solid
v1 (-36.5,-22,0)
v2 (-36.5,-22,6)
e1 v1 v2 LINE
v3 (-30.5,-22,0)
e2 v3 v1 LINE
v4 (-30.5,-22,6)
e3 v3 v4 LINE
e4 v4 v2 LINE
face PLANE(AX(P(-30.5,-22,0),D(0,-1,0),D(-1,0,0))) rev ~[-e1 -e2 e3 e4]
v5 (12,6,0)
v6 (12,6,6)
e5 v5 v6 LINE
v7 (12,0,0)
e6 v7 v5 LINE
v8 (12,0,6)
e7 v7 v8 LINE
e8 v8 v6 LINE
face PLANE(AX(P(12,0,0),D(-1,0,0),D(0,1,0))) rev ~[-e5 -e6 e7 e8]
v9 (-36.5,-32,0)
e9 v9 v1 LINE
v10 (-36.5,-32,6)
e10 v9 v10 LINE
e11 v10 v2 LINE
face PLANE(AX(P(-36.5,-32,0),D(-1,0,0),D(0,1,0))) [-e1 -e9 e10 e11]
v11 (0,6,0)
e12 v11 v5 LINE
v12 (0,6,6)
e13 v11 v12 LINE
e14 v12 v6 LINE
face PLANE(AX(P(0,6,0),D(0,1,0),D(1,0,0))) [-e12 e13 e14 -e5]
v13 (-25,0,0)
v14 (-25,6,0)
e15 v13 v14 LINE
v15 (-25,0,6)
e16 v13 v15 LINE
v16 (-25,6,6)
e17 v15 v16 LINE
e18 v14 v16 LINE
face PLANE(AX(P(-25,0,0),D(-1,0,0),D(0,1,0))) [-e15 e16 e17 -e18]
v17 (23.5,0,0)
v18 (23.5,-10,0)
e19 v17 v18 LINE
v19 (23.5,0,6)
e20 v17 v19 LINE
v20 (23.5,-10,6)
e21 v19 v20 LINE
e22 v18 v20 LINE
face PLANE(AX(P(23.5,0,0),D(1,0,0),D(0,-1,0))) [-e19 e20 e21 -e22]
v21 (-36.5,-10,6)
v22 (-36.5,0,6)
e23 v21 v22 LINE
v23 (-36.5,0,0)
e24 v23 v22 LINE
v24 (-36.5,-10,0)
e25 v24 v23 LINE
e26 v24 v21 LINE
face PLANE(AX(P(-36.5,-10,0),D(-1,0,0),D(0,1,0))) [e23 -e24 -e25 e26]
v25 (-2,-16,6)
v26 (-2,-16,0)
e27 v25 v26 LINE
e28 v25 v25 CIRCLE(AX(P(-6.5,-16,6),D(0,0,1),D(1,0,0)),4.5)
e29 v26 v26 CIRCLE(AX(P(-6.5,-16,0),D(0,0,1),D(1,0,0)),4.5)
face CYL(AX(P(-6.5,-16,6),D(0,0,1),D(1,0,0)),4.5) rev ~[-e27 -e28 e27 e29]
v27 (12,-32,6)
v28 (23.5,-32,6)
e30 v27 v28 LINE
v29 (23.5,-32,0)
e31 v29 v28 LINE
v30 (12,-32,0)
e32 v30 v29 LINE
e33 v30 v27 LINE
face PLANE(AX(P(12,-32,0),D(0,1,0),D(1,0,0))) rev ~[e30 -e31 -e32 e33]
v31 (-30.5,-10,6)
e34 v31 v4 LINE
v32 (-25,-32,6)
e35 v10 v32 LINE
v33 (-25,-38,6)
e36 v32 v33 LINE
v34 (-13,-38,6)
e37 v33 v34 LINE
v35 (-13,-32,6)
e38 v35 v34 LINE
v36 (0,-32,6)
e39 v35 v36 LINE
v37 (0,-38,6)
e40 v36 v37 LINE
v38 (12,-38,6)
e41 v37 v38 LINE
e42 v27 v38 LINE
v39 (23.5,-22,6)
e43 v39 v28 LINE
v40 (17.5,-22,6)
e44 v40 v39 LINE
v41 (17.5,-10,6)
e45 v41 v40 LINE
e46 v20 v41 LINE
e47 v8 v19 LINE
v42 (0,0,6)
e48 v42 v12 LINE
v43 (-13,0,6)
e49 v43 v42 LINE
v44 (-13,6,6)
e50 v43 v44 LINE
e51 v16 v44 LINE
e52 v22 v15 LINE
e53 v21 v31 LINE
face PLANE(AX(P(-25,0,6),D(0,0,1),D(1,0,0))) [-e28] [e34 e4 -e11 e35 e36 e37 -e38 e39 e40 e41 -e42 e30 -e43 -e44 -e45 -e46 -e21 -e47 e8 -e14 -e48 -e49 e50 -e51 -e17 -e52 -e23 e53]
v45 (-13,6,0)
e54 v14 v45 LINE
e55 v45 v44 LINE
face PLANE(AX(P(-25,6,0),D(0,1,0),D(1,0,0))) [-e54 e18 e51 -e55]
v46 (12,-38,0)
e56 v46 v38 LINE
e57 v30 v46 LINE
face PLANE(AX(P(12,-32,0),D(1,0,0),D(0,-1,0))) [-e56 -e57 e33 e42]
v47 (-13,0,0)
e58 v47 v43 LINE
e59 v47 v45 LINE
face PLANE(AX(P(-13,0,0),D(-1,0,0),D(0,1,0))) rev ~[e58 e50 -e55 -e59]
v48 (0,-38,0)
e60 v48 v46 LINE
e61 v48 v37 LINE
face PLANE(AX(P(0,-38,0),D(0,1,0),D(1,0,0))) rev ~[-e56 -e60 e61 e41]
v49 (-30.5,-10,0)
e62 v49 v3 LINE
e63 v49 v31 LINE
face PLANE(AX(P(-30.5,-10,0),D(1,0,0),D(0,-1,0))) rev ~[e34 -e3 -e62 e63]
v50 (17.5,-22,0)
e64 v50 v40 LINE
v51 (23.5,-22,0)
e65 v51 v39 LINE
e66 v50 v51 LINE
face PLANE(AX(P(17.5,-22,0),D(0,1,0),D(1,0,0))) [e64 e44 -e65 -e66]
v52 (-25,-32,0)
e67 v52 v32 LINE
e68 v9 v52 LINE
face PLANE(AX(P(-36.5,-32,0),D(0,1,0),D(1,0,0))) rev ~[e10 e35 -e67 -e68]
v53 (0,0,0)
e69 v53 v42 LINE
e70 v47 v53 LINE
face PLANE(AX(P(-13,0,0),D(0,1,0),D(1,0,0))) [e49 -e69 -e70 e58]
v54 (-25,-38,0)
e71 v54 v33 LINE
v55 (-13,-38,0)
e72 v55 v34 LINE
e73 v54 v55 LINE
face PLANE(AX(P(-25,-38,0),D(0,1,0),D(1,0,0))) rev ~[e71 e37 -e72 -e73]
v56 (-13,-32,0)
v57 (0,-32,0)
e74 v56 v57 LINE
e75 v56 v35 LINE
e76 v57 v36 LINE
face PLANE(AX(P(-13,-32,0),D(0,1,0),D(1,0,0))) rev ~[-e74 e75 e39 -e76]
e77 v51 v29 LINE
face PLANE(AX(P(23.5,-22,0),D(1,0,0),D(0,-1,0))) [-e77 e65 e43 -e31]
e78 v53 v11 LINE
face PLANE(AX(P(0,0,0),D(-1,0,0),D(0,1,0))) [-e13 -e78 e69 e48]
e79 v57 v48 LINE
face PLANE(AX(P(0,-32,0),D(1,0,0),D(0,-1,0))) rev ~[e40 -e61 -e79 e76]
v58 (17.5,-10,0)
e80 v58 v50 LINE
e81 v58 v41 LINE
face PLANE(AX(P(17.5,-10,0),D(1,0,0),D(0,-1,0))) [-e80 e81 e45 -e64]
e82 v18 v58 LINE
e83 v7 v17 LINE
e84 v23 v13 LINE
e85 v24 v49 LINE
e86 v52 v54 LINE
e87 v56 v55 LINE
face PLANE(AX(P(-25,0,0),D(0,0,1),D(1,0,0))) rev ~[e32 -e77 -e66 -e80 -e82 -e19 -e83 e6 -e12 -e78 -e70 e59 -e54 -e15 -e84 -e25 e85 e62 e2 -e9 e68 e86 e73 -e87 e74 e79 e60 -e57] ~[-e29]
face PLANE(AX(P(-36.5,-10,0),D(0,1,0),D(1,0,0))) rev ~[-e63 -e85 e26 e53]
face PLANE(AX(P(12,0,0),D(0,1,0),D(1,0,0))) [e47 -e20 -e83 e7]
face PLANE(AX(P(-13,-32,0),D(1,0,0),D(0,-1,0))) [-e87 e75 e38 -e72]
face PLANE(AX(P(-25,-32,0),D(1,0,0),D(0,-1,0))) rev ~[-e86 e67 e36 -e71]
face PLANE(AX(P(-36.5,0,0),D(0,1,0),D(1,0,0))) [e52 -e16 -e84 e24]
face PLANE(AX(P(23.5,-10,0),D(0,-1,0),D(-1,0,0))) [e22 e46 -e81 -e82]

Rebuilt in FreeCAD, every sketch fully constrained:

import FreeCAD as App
import Part
import Sketcher
Q = App.Units.Quantity

doc = App.newDocument("Part")
body = doc.addObject("PartDesign::Body", "Body")

# Sketch on XY plane
sketch1 = body.newObject("Sketcher::SketchObject", "Sketch")
sketch1.AttachmentSupport = (doc.getObject("XY_Plane"), [""])
sketch1.MapMode = "FlatFace"
sketch1.addGeometry([
    Part.LineSegment(App.Vector(12, 6, 0), App.Vector(0, 6, 0)),  # 0
    Part.LineSegment(App.Vector(0, 6, 0), App.Vector(0, 0, 0)),  # 1
    Part.LineSegment(App.Vector(0, 0, 0), App.Vector(-13, 0, 0)),  # 2
    Part.LineSegment(App.Vector(-13, 0, 0), App.Vector(-13, 6, 0)),  # 3
    Part.LineSegment(App.Vector(-13, 6, 0), App.Vector(-25, 6, 0)),  # 4
    Part.LineSegment(App.Vector(-25, 6, 0), App.Vector(-25, 0, 0)),  # 5
    Part.LineSegment(App.Vector(-25, 0, 0), App.Vector(-36, 0, 0)),  # 6
    Part.LineSegment(App.Vector(-36, 0, 0), App.Vector(-36, -10, 0)),  # 7
    Part.LineSegment(App.Vector(-36, -10, 0), App.Vector(-30, -10, 0)),  # 8
    Part.LineSegment(App.Vector(-30, -10, 0), App.Vector(-30, -22, 0)),  # 9
    Part.LineSegment(App.Vector(-30, -22, 0), App.Vector(-36, -22, 0)),  # 10
    Part.LineSegment(App.Vector(-36, -22, 0), App.Vector(-36, -32, 0)),  # 11
    Part.LineSegment(App.Vector(-36, -32, 0), App.Vector(-25, -32, 0)),  # 12
    Part.LineSegment(App.Vector(-25, -32, 0), App.Vector(-25, -38, 0)),  # 13
    Part.LineSegment(App.Vector(-25, -38, 0), App.Vector(-13, -38, 0)),  # 14
    Part.LineSegment(App.Vector(-13, -38, 0), App.Vector(-13, -32, 0)),  # 15
    Part.LineSegment(App.Vector(-13, -32, 0), App.Vector(0, -32, 0)),  # 16
    Part.LineSegment(App.Vector(0, -32, 0), App.Vector(0, -38, 0)),  # 17
    Part.LineSegment(App.Vector(0, -38, 0), App.Vector(12, -38, 0)),  # 18
    Part.LineSegment(App.Vector(12, -38, 0), App.Vector(12, -32, 0)),  # 19
    Part.LineSegment(App.Vector(12, -32, 0), App.Vector(24, -32, 0)),  # 20
    Part.LineSegment(App.Vector(24, -32, 0), App.Vector(24, -22, 0)),  # 21
    Part.LineSegment(App.Vector(24, -22, 0), App.Vector(18, -22, 0)),  # 22
    Part.LineSegment(App.Vector(18, -22, 0), App.Vector(18, -10, 0)),  # 23
    Part.LineSegment(App.Vector(18, -10, 0), App.Vector(24, -10, 0)),  # 24
    Part.LineSegment(App.Vector(24, -10, 0), App.Vector(24, 0, 0)),  # 25
    Part.LineSegment(App.Vector(24, 0, 0), App.Vector(12, 0, 0)),  # 26
    Part.LineSegment(App.Vector(12, 0, 0), App.Vector(12, 6, 0)),  # 27
], False)
sketch1.addConstraint([
    Sketcher.Constraint("Coincident", 0, 2, 1, 1),
    Sketcher.Constraint("Coincident", 1, 2, 2, 1),
    Sketcher.Constraint("Coincident", 2, 2, 3, 1),
    Sketcher.Constraint("Coincident", 3, 2, 4, 1),
    Sketcher.Constraint("Coincident", 4, 2, 5, 1),
    Sketcher.Constraint("Coincident", 5, 2, 6, 1),
    Sketcher.Constraint("Coincident", 6, 2, 7, 1),
    Sketcher.Constraint("Coincident", 7, 2, 8, 1),
    Sketcher.Constraint("Coincident", 8, 2, 9, 1),
    Sketcher.Constraint("Coincident", 9, 2, 10, 1),
    Sketcher.Constraint("Coincident", 10, 2, 11, 1),
    Sketcher.Constraint("Coincident", 11, 2, 12, 1),
    Sketcher.Constraint("Coincident", 12, 2, 13, 1),
    Sketcher.Constraint("Coincident", 13, 2, 14, 1),
    Sketcher.Constraint("Coincident", 14, 2, 15, 1),
    Sketcher.Constraint("Coincident", 15, 2, 16, 1),
    Sketcher.Constraint("Coincident", 16, 2, 17, 1),
    Sketcher.Constraint("Coincident", 17, 2, 18, 1),
    Sketcher.Constraint("Coincident", 18, 2, 19, 1),
    Sketcher.Constraint("Coincident", 19, 2, 20, 1),
    Sketcher.Constraint("Coincident", 20, 2, 21, 1),
    Sketcher.Constraint("Coincident", 21, 2, 22, 1),
    Sketcher.Constraint("Coincident", 22, 2, 23, 1),
    Sketcher.Constraint("Coincident", 23, 2, 24, 1),
    Sketcher.Constraint("Coincident", 24, 2, 25, 1),
    Sketcher.Constraint("Coincident", 25, 2, 26, 1),
    Sketcher.Constraint("Coincident", 26, 2, 27, 1),
    Sketcher.Constraint("Coincident", 27, 2, 0, 1),
    Sketcher.Constraint("Horizontal", 0),
    Sketcher.Constraint("Vertical", 1),
    Sketcher.Constraint("Horizontal", 2),
    Sketcher.Constraint("Vertical", 3),
    Sketcher.Constraint("Horizontal", 4),
    Sketcher.Constraint("Vertical", 5),
    Sketcher.Constraint("Horizontal", 6),
    Sketcher.Constraint("Vertical", 7),
    Sketcher.Constraint("Horizontal", 8),
    Sketcher.Constraint("Vertical", 9),
    Sketcher.Constraint("Horizontal", 10),
    Sketcher.Constraint("Vertical", 11),
    Sketcher.Constraint("Horizontal", 12),
    Sketcher.Constraint("Vertical", 13),
    Sketcher.Constraint("Horizontal", 14),
    Sketcher.Constraint("Vertical", 15),
    Sketcher.Constraint("Horizontal", 16),
    Sketcher.Constraint("Vertical", 17),
    Sketcher.Constraint("Horizontal", 18),
    Sketcher.Constraint("Vertical", 19),
    Sketcher.Constraint("Horizontal", 20),
    Sketcher.Constraint("Vertical", 21),
    Sketcher.Constraint("Horizontal", 22),
    Sketcher.Constraint("Vertical", 23),
    Sketcher.Constraint("Horizontal", 24),
    Sketcher.Constraint("Vertical", 25),
    Sketcher.Constraint("Horizontal", 26),
    Sketcher.Constraint("Vertical", 27),
    Sketcher.Constraint("Coincident", 1, 2, -1, 1),
    Sketcher.Constraint("PointOnObject", 5, 2, -1),
    Sketcher.Constraint("PointOnObject", 16, 2, -2),
    Sketcher.Constraint("PointOnObject", 25, 2, -1),
    Sketcher.Constraint("Horizontal", 0, 2, 3, 2),
    Sketcher.Constraint("Horizontal", 12, 2, 15, 2),
    Sketcher.Constraint("Horizontal", 14, 2, 17, 2),
    Sketcher.Constraint("Horizontal", 16, 2, 19, 2),
    Sketcher.Constraint("Horizontal", 10, 2, 21, 2),
    Sketcher.Constraint("Horizontal", 8, 2, 23, 2),
    Sketcher.Constraint("Vertical", 7, 2, 10, 2),
    Sketcher.Constraint("Vertical", 5, 2, 12, 2),
    Sketcher.Constraint("Vertical", 3, 2, 14, 2),
    Sketcher.Constraint("Vertical", 21, 2, 24, 2),
    Sketcher.Constraint("Vertical", 19, 2, 26, 2),
    Sketcher.Constraint("Equal", 0, 4),
    Sketcher.Constraint("Equal", 12, 20),
    Sketcher.Constraint("Equal", 10, 22),
    Sketcher.Constraint("Equal", 24, 1),
    Sketcher.Constraint("Equal", 18, 9),
    Sketcher.Constraint("Equal", 7, 11),
    Sketcher.Constraint("Equal", 5, 13),
    Sketcher.Constraint("DistanceY", 11, 2, -1, 1, Q("32 mm")),
    Sketcher.Constraint("DistanceX", 0, 2, 0, 1, Q("12 mm")),
    Sketcher.Constraint("DistanceX", 2, 2, 2, 1, Q("13 mm")),
    Sketcher.Constraint("DistanceX", 8, 1, 8, 2, Q("6 mm")),
    Sketcher.Constraint("DistanceX", 6, 2, 6, 1, Q("11.5 mm")),
])
pad1 = body.newObject("PartDesign::Pad", "Pad")
pad1.Profile = sketch1
pad1.Length = 6

# Sketch on XY plane
sketch2 = body.newObject("Sketcher::SketchObject", "Sketch001")
sketch2.AttachmentSupport = (doc.getObject("XY_Plane"), [""])
sketch2.MapMode = "FlatFace"
sketch2.AttachmentOffset = App.Placement(App.Vector(0, 0, 6), App.Rotation())
sketch2.addGeometry(Part.Circle(App.Vector(-6.5, -16, 0), App.Vector(0, 0, 1), 4.5), False)
sketch2.addConstraint([
    Sketcher.Constraint("Diameter", 0, Q("9 mm")),
    Sketcher.Constraint("DistanceY", 0, 3, -1, 1, Q("16 mm")),
    Sketcher.Constraint("DistanceX", 0, 3, -1, 1, Q("6.5 mm")),
])
pocket1 = body.newObject("PartDesign::Pocket", "Pocket")
pocket1.Profile = sketch2
pocket1.Length = 6

doc.recompute()
